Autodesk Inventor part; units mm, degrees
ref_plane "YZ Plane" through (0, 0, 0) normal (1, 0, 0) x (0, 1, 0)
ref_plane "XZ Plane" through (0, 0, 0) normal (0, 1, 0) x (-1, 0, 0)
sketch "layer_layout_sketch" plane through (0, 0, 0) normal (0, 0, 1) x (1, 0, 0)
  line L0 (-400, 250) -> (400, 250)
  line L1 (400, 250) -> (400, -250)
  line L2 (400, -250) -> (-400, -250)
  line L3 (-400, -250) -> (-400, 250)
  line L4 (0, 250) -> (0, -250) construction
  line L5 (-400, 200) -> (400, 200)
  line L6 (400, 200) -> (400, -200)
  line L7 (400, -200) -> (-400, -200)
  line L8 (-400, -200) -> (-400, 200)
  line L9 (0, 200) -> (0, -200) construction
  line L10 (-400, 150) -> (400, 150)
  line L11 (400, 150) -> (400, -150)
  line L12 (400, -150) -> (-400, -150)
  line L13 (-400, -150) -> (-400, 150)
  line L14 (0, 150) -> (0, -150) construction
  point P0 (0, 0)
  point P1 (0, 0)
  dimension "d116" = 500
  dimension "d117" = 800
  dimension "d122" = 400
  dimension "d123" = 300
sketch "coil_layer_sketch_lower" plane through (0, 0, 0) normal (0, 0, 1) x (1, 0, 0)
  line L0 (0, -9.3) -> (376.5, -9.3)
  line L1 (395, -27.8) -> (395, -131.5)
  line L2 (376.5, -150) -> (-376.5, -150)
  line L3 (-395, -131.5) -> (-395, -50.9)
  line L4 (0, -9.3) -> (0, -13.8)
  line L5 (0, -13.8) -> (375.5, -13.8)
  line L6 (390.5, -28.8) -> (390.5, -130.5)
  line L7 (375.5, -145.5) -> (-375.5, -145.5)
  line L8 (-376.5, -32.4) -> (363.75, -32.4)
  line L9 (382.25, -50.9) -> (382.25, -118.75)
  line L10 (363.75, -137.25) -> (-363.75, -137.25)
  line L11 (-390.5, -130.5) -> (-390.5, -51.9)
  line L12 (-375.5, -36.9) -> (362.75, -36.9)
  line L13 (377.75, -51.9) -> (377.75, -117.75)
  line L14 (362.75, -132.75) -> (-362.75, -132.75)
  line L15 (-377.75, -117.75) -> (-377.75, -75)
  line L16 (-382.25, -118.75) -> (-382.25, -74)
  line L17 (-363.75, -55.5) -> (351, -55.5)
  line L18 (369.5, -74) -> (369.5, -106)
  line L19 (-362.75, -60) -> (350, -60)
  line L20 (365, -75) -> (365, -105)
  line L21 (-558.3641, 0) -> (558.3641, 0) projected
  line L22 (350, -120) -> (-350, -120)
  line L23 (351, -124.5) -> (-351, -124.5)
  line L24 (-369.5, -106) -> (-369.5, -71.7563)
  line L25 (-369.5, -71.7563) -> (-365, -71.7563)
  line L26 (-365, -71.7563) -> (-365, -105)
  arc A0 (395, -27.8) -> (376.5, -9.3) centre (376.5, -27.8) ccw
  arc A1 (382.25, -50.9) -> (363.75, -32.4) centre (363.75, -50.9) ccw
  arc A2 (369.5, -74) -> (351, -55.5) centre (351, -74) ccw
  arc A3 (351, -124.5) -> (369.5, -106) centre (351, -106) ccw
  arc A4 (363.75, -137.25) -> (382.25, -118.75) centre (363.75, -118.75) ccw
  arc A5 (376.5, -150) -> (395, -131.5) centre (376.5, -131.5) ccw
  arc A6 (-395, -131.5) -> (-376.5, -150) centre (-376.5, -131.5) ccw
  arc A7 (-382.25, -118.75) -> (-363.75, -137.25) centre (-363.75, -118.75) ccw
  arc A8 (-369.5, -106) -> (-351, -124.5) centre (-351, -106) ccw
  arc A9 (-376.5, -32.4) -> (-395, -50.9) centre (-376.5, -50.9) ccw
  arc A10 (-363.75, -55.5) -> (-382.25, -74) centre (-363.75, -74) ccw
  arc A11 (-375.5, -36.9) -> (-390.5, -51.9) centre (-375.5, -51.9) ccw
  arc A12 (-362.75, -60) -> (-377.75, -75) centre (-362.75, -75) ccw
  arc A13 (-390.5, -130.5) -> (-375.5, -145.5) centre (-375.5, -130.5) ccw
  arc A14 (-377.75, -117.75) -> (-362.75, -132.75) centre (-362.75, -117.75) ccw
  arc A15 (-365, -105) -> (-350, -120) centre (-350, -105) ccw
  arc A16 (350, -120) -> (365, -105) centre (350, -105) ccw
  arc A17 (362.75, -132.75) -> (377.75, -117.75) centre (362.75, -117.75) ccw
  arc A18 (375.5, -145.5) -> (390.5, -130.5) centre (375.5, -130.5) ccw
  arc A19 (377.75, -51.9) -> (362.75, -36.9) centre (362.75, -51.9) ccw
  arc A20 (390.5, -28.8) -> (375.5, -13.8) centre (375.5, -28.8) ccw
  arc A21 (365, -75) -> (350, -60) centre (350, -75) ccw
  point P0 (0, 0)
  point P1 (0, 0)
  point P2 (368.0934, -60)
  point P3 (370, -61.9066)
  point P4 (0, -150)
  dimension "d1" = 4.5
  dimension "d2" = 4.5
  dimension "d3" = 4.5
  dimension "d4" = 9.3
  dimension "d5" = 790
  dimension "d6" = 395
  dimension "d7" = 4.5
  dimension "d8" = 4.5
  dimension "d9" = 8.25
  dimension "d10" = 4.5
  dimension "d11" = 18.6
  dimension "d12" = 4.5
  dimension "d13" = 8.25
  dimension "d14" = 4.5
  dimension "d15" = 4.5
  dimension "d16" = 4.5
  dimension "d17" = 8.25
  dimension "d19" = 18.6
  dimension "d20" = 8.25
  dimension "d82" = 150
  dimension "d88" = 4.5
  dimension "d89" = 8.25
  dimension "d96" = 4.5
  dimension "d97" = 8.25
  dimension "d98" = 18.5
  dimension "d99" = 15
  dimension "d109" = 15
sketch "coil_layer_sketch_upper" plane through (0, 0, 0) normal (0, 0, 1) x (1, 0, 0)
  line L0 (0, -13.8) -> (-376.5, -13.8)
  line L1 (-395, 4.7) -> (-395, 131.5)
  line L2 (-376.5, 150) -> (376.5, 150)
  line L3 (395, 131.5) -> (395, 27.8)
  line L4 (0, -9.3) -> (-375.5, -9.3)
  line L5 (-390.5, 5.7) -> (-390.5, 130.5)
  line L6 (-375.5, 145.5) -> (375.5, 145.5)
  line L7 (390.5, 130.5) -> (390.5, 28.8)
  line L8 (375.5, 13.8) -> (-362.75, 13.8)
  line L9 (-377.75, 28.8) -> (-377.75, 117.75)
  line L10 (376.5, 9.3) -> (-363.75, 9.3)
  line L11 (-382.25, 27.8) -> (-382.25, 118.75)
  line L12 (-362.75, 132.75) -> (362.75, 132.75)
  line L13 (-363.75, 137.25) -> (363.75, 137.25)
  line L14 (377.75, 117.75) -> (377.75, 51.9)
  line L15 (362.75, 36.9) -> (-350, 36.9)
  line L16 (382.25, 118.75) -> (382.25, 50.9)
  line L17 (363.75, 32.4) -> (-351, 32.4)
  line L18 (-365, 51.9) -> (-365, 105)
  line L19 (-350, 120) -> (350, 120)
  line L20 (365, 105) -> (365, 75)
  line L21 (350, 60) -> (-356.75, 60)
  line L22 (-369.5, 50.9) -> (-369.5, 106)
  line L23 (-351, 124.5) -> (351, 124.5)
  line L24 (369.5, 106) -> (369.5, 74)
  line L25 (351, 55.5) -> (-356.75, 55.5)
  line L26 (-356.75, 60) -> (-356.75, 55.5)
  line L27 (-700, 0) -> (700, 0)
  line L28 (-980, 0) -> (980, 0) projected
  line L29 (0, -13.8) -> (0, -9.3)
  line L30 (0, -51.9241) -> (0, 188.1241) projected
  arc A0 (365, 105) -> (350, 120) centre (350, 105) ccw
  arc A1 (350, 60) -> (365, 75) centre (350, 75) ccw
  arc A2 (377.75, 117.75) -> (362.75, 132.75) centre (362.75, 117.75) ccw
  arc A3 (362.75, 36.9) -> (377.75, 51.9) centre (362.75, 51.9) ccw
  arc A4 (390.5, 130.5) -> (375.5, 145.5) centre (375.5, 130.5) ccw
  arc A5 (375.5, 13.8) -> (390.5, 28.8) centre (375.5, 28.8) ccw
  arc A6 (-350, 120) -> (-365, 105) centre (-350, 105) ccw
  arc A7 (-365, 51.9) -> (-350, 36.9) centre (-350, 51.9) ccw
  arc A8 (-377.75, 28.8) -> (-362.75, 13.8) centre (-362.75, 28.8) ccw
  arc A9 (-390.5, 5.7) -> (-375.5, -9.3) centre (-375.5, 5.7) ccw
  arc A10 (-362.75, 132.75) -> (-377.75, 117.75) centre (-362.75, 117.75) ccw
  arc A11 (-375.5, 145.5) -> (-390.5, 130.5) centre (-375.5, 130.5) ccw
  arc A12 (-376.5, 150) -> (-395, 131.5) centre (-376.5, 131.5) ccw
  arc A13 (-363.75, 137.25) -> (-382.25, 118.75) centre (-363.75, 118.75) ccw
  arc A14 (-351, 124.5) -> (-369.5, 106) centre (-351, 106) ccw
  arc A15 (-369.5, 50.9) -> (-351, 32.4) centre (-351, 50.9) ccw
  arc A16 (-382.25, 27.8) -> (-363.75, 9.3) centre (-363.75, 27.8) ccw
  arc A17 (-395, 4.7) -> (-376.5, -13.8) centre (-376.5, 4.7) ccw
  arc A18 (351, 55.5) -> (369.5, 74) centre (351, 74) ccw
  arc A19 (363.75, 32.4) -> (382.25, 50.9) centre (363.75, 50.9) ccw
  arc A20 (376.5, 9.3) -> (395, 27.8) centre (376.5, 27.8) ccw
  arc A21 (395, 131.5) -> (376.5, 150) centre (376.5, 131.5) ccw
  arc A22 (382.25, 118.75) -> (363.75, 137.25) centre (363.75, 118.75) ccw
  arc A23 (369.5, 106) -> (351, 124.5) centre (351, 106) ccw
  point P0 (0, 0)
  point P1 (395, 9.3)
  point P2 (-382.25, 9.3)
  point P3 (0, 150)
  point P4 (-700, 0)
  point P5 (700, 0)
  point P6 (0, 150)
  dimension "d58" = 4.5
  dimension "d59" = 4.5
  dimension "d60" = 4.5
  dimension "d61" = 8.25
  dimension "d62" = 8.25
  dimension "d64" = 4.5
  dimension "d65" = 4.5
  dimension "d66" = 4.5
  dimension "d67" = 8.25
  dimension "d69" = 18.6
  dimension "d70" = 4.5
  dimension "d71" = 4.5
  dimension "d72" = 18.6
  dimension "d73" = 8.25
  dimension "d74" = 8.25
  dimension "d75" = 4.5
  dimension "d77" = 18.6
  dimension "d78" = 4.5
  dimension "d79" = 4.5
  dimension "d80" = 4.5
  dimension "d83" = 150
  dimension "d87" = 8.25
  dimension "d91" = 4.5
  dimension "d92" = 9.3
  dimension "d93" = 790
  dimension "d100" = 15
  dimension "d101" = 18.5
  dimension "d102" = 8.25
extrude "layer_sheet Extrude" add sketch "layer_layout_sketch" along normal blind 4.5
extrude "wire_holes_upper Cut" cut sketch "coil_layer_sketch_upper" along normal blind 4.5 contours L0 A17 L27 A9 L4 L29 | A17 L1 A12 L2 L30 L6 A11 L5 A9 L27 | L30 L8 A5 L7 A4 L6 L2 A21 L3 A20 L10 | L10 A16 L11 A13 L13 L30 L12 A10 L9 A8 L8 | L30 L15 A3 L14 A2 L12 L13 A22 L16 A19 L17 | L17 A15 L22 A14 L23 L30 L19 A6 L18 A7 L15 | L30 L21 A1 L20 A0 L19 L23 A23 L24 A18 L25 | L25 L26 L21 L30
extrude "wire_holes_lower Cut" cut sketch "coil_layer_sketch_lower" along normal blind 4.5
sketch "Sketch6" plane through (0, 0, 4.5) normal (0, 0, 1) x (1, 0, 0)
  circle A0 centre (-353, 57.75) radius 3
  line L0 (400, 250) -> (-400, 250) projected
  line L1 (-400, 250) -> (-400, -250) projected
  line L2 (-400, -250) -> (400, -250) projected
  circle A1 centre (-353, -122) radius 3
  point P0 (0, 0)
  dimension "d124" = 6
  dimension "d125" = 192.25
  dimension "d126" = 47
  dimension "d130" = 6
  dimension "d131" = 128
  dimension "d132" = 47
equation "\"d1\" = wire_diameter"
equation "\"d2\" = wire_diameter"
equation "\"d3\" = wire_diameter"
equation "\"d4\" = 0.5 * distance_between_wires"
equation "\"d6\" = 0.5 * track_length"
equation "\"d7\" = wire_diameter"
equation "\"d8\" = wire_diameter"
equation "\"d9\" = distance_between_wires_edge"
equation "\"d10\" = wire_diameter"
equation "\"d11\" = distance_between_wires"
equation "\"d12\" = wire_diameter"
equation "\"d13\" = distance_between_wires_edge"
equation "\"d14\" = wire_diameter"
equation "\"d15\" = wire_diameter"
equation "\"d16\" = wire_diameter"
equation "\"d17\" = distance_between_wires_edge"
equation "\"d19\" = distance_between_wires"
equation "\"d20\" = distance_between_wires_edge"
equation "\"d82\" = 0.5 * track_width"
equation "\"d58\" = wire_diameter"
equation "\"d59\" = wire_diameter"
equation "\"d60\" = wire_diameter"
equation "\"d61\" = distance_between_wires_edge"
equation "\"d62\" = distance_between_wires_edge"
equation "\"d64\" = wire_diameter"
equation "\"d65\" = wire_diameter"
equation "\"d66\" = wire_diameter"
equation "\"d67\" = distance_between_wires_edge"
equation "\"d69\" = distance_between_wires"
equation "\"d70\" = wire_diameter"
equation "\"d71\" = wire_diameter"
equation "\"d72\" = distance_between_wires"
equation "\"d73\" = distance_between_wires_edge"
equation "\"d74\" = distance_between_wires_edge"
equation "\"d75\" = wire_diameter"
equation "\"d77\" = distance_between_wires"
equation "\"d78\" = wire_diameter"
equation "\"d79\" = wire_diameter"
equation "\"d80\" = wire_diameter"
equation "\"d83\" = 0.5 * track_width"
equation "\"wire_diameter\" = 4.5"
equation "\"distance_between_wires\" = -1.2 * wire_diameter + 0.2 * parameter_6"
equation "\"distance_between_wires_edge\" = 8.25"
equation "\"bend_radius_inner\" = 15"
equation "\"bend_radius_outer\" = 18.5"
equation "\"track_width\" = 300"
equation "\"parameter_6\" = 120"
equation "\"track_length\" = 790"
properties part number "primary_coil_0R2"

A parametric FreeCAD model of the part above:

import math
import FreeCAD as App
import Part
import Sketcher
from FreeCAD import Vector
Q = App.Units.Quantity

doc = App.newDocument("Part")
params = doc.addObject("Spreadsheet::Sheet", "Params")
for row, (alias, value) in enumerate([
    ("sketch1_width", "800 mm"),
    ("sketch1_height", "500 mm"),
    ("pad1_length", "4.5 mm"),
    ("sketch2_radius", "15 mm"),
    ("sketch2_radius2", "18.5 mm"),
    ("sketch2_height", "4.5 mm"),
    ("sketch2_width", "751 mm"),
    ("sketch2_width2", "700 mm"),
    ("pocket1_length", "4.5 mm"),
    ("sketch3_radius", "15 mm"),
    ("sketch3_radius2", "18.5 mm"),
    ("sketch3_width", "4.5 mm"),
    ("sketch3_width2", "751 mm"),
    ("sketch3_width3", "700 mm"),
    ("pocket2_length", "4.5 mm"),
], start=1):
    params.set(f"A{row}", alias)
    params.set(f"B{row}", "=" + value)
    params.setAlias(f"B{row}", alias)

body = doc.addObject("PartDesign::Body", "Body")

# Sketch on XY plane
sketch1 = body.newObject("Sketcher::SketchObject", "Sketch")
sketch1.AttachmentSupport = (doc.getObject("XY_Plane"), [""])
sketch1.MapMode = "FlatFace"
sketch1.addGeometry([
    Part.LineSegment(Vector(400, 250, 0), Vector(-400, 250, 0)),
    Part.LineSegment(Vector(-400, 250, 0), Vector(-400, -250, 0)),
    Part.LineSegment(Vector(-400, -250, 0), Vector(400, -250, 0)),
    Part.LineSegment(Vector(400, -250, 0), Vector(400, 250, 0)),
], False)
sketch1.addConstraint([
    Sketcher.Constraint("Coincident", 0, 2, 1, 1),
    Sketcher.Constraint("Coincident", 1, 2, 2, 1),
    Sketcher.Constraint("Coincident", 2, 2, 3, 1),
    Sketcher.Constraint("Coincident", 3, 2, 0, 1),
    Sketcher.Constraint("Horizontal", 0),
    Sketcher.Constraint("Vertical", 1),
    Sketcher.Constraint("Horizontal", 2),
    Sketcher.Constraint("Vertical", 3),
    Sketcher.Constraint("Symmetric", 0, 2, 2, 2, -1, 1),
    Sketcher.Constraint("DistanceX", 0, 2, 0, 1, Q("800 mm")),
    Sketcher.Constraint("DistanceY", 1, 2, 1, 1, Q("500 mm")),
])
sketch1.setExpression("Constraints[9]", "Params.sketch1_width")
sketch1.setExpression("Constraints[10]", "Params.sketch1_height")
pad1 = body.newObject("PartDesign::Pad", "Pad")
pad1.Profile = sketch1
pad1.setExpression("Length", "Params.pad1_length")

# Sketch on XY plane
sketch2 = body.newObject("Sketcher::SketchObject", "Sketch001")
sketch2.AttachmentSupport = (doc.getObject("XY_Plane"), [""])
sketch2.MapMode = "FlatFace"
sketch2.addGeometry([
    Part.LineSegment(Vector(-376.5, -13.8, 0), Vector(0, -13.8, 0)),  # 0
    Part.LineSegment(Vector(0, -13.8, 0), Vector(0, -9.3, 0)),  # 1
    Part.LineSegment(Vector(0, -9.3, 0), Vector(-375.5, -9.3, 0)),  # 2
    Part.ArcOfCircle(Part.Circle(Vector(-375.5, 5.7, 0), Vector(0, 0, 1), 15), math.radians(180), math.radians(270)),  # 3
    Part.LineSegment(Vector(-390.5, 5.7, 0), Vector(-390.5, 130.5, 0)),  # 4
    Part.ArcOfCircle(Part.Circle(Vector(-375.5, 130.5, 0), Vector(0, 0, 1), 15), math.radians(90), math.radians(180)),  # 5
    Part.LineSegment(Vector(-375.5, 145.5, 0), Vector(375.5, 145.5, 0)),  # 6
    Part.ArcOfCircle(Part.Circle(Vector(375.5, 130.5, 0), Vector(0, 0, 1), 15), math.radians(0), math.radians(90)),  # 7
    Part.LineSegment(Vector(390.5, 130.5, 0), Vector(390.5, 28.8, 0)),  # 8
    Part.ArcOfCircle(Part.Circle(Vector(375.5, 28.8, 0), Vector(0, 0, 1), 15), math.radians(-90), math.radians(0)),  # 9
    Part.LineSegment(Vector(375.5, 13.8, 0), Vector(-362.8, 13.8, 0)),  # 10
    Part.ArcOfCircle(Part.Circle(Vector(-362.8, 28.8, 0), Vector(0, 0, 1), 15), math.radians(180), math.radians(270)),  # 11
    Part.LineSegment(Vector(-377.8, 28.8, 0), Vector(-377.8, 117.8, 0)),  # 12
    Part.ArcOfCircle(Part.Circle(Vector(-362.8, 117.8, 0), Vector(0, 0, 1), 15), math.radians(90), math.radians(180)),  # 13
    Part.LineSegment(Vector(-362.8, 132.8, 0), Vector(362.8, 132.8, 0)),  # 14
    Part.ArcOfCircle(Part.Circle(Vector(362.8, 117.8, 0), Vector(0, 0, 1), 15), math.radians(0), math.radians(90)),  # 15
    Part.LineSegment(Vector(377.8, 117.8, 0), Vector(377.8, 51.9, 0)),  # 16
    Part.ArcOfCircle(Part.Circle(Vector(362.8, 51.9, 0), Vector(0, 0, 1), 15), math.radians(-90), math.radians(0)),  # 17
    Part.LineSegment(Vector(362.8, 36.9, 0), Vector(-350, 36.9, 0)),  # 18
    Part.ArcOfCircle(Part.Circle(Vector(-350, 51.9, 0), Vector(0, 0, 1), 15), math.radians(180), math.radians(270)),  # 19
    Part.LineSegment(Vector(-365, 51.9, 0), Vector(-365, 105, 0)),  # 20
    Part.ArcOfCircle(Part.Circle(Vector(-350, 105, 0), Vector(0, 0, 1), 15), math.radians(90), math.radians(180)),  # 21
    Part.LineSegment(Vector(-350, 120, 0), Vector(350, 120, 0)),  # 22
    Part.ArcOfCircle(Part.Circle(Vector(350, 105, 0), Vector(0, 0, 1), 15), math.radians(0), math.radians(90)),  # 23
    Part.LineSegment(Vector(365, 105, 0), Vector(365, 75, 0)),  # 24
    Part.ArcOfCircle(Part.Circle(Vector(350, 75, 0), Vector(0, 0, 1), 15), math.radians(-90), math.radians(0)),  # 25
    Part.LineSegment(Vector(350, 60, 0), Vector(-356.8, 60, 0)),  # 26
    Part.LineSegment(Vector(-356.8, 60, 0), Vector(-356.8, 55.5, 0)),  # 27
    Part.LineSegment(Vector(-356.8, 55.5, 0), Vector(351, 55.5, 0)),  # 28
    Part.ArcOfCircle(Part.Circle(Vector(351, 74, 0), Vector(0, 0, 1), 18.5), math.radians(-90), math.radians(0)),  # 29
    Part.LineSegment(Vector(369.5, 74, 0), Vector(369.5, 106, 0)),  # 30
    Part.ArcOfCircle(Part.Circle(Vector(351, 106, 0), Vector(0, 0, 1), 18.5), math.radians(0), math.radians(90)),  # 31
    Part.LineSegment(Vector(351, 124.5, 0), Vector(-351, 124.5, 0)),  # 32
    Part.ArcOfCircle(Part.Circle(Vector(-351, 106, 0), Vector(0, 0, 1), 18.5), math.radians(90), math.radians(180)),  # 33
    Part.LineSegment(Vector(-369.5, 106, 0), Vector(-369.5, 50.9, 0)),  # 34
    Part.ArcOfCircle(Part.Circle(Vector(-351, 50.9, 0), Vector(0, 0, 1), 18.5), math.radians(180), math.radians(270)),  # 35
    Part.LineSegment(Vector(-351, 32.4, 0), Vector(363.8, 32.4, 0)),  # 36
    Part.ArcOfCircle(Part.Circle(Vector(363.8, 50.9, 0), Vector(0, 0, 1), 18.5), math.radians(-90), math.radians(0)),  # 37
    Part.LineSegment(Vector(382.2, 50.9, 0), Vector(382.2, 118.8, 0)),  # 38
    Part.ArcOfCircle(Part.Circle(Vector(363.8, 118.8, 0), Vector(0, 0, 1), 18.5), math.radians(0), math.radians(90)),  # 39
    Part.LineSegment(Vector(363.8, 137.2, 0), Vector(-363.8, 137.2, 0)),  # 40
    Part.ArcOfCircle(Part.Circle(Vector(-363.8, 118.8, 0), Vector(0, 0, 1), 18.5), math.radians(90), math.radians(180)),  # 41
    Part.LineSegment(Vector(-382.2, 118.8, 0), Vector(-382.2, 27.8, 0)),  # 42
    Part.ArcOfCircle(Part.Circle(Vector(-363.8, 27.8, 0), Vector(0, 0, 1), 18.5), math.radians(180), math.radians(270)),  # 43
    Part.LineSegment(Vector(-363.8, 9.3, 0), Vector(376.5, 9.3, 0)),  # 44
    Part.ArcOfCircle(Part.Circle(Vector(376.5, 27.8, 0), Vector(0, 0, 1), 18.5), math.radians(-90), math.radians(0)),  # 45
    Part.LineSegment(Vector(395, 27.8, 0), Vector(395, 131.5, 0)),  # 46
    Part.ArcOfCircle(Part.Circle(Vector(376.5, 131.5, 0), Vector(0, 0, 1), 18.5), math.radians(0), math.radians(90)),  # 47
    Part.LineSegment(Vector(376.5, 150, 0), Vector(-376.5, 150, 0)),  # 48
    Part.ArcOfCircle(Part.Circle(Vector(-376.5, 131.5, 0), Vector(0, 0, 1), 18.5), math.radians(90), math.radians(180)),  # 49
    Part.LineSegment(Vector(-395, 131.5, 0), Vector(-395, 4.7, 0)),  # 50
    Part.ArcOfCircle(Part.Circle(Vector(-376.5, 4.7, 0), Vector(0, 0, 1), 18.5), math.radians(180), math.radians(270)),  # 51
], False)
sketch2.addConstraint([
    Sketcher.Constraint("Coincident", 0, 2, 1, 1),
    Sketcher.Constraint("Coincident", 1, 2, 2, 1),
    Sketcher.Constraint("Tangent", 2, 2, 3, 2),
    Sketcher.Constraint("Tangent", 3, 1, 4, 1),
    Sketcher.Constraint("Tangent", 4, 2, 5, 2),
    Sketcher.Constraint("Tangent", 5, 1, 6, 1),
    Sketcher.Constraint("Tangent", 6, 2, 7, 2),
    Sketcher.Constraint("Tangent", 7, 1, 8, 1),
    Sketcher.Constraint("Tangent", 8, 2, 9, 2),
    Sketcher.Constraint("Tangent", 9, 1, 10, 1),
    Sketcher.Constraint("Tangent", 10, 2, 11, 2),
    Sketcher.Constraint("Tangent", 11, 1, 12, 1),
    Sketcher.Constraint("Tangent", 12, 2, 13, 2),
    Sketcher.Constraint("Tangent", 13, 1, 14, 1),
    Sketcher.Constraint("Tangent", 14, 2, 15, 2),
    Sketcher.Constraint("Tangent", 15, 1, 16, 1),
    Sketcher.Constraint("Tangent", 16, 2, 17, 2),
    Sketcher.Constraint("Tangent", 17, 1, 18, 1),
    Sketcher.Constraint("Tangent", 18, 2, 19, 2),
    Sketcher.Constraint("Tangent", 19, 1, 20, 1),
    Sketcher.Constraint("Tangent", 20, 2, 21, 2),
    Sketcher.Constraint("Tangent", 21, 1, 22, 1),
    Sketcher.Constraint("Tangent", 22, 2, 23, 2),
    Sketcher.Constraint("Tangent", 23, 1, 24, 1),
    Sketcher.Constraint("Tangent", 24, 2, 25, 2),
    Sketcher.Constraint("Tangent", 25, 1, 26, 1),
    Sketcher.Constraint("Coincident", 26, 2, 27, 1),
    Sketcher.Constraint("Coincident", 27, 2, 28, 1),
    Sketcher.Constraint("Tangent", 28, 2, 29, 1),
    Sketcher.Constraint("Tangent", 29, 2, 30, 1),
    Sketcher.Constraint("Tangent", 30, 2, 31, 1),
    Sketcher.Constraint("Tangent", 31, 2, 32, 1),
    Sketcher.Constraint("Tangent", 32, 2, 33, 1),
    Sketcher.Constraint("Tangent", 33, 2, 34, 1),
    Sketcher.Constraint("Tangent", 34, 2, 35, 1),
    Sketcher.Constraint("Tangent", 35, 2, 36, 1),
    Sketcher.Constraint("Tangent", 36, 2, 37, 1),
    Sketcher.Constraint("Tangent", 37, 2, 38, 1),
    Sketcher.Constraint("Tangent", 38, 2, 39, 1),
    Sketcher.Constraint("Tangent", 39, 2, 40, 1),
    Sketcher.Constraint("Tangent", 40, 2, 41, 1),
    Sketcher.Constraint("Tangent", 41, 2, 42, 1),
    Sketcher.Constraint("Tangent", 42, 2, 43, 1),
    Sketcher.Constraint("Tangent", 43, 2, 44, 1),
    Sketcher.Constraint("Tangent", 44, 2, 45, 1),
    Sketcher.Constraint("Tangent", 45, 2, 46, 1),
    Sketcher.Constraint("Tangent", 46, 2, 47, 1),
    Sketcher.Constraint("Tangent", 47, 2, 48, 1),
    Sketcher.Constraint("Tangent", 48, 2, 49, 1),
    Sketcher.Constraint("Tangent", 49, 2, 50, 1),
    Sketcher.Constraint("Tangent", 50, 2, 51, 1),
    Sketcher.Constraint("Tangent", 51, 2, 0, 1),
    Sketcher.Constraint("Horizontal", 0),
    Sketcher.Constraint("Vertical", 1),
    Sketcher.Constraint("Horizontal", 2),
    Sketcher.Constraint("Vertical", 4),
    Sketcher.Constraint("Horizontal", 6),
    Sketcher.Constraint("Vertical", 8),
    Sketcher.Constraint("Horizontal", 10),
    Sketcher.Constraint("Vertical", 12),
    Sketcher.Constraint("Horizontal", 14),
    Sketcher.Constraint("Vertical", 16),
    Sketcher.Constraint("Horizontal", 18),
    Sketcher.Constraint("Vertical", 20),
    Sketcher.Constraint("Horizontal", 22),
    Sketcher.Constraint("Vertical", 24),
    Sketcher.Constraint("Horizontal", 26),
    Sketcher.Constraint("Vertical", 27),
    Sketcher.Constraint("Horizontal", 28),
    Sketcher.Constraint("Vertical", 30),
    Sketcher.Constraint("Horizontal", 32),
    Sketcher.Constraint("Vertical", 34),
    Sketcher.Constraint("Horizontal", 36),
    Sketcher.Constraint("Vertical", 38),
    Sketcher.Constraint("Horizontal", 40),
    Sketcher.Constraint("Vertical", 42),
    Sketcher.Constraint("Horizontal", 44),
    Sketcher.Constraint("Vertical", 46),
    Sketcher.Constraint("Horizontal", 48),
    Sketcher.Constraint("Vertical", 50),
    Sketcher.Constraint("Equal", 3, 5),
    Sketcher.Constraint("Equal", 5, 7),
    Sketcher.Constraint("Equal", 7, 9),
    Sketcher.Constraint("Equal", 9, 11),
    Sketcher.Constraint("Equal", 11, 13),
    Sketcher.Constraint("Equal", 13, 15),
    Sketcher.Constraint("Equal", 15, 17),
    Sketcher.Constraint("Equal", 17, 19),
    Sketcher.Constraint("Equal", 19, 21),
    Sketcher.Constraint("Equal", 21, 23),
    Sketcher.Constraint("Equal", 23, 25),
    Sketcher.Constraint("Equal", 29, 31),
    Sketcher.Constraint("Equal", 31, 33),
    Sketcher.Constraint("Equal", 33, 35),
    Sketcher.Constraint("Equal", 35, 37),
    Sketcher.Constraint("Equal", 37, 39),
    Sketcher.Constraint("Equal", 39, 41),
    Sketcher.Constraint("Equal", 41, 43),
    Sketcher.Constraint("Equal", 43, 45),
    Sketcher.Constraint("Equal", 45, 47),
    Sketcher.Constraint("Equal", 47, 49),
    Sketcher.Constraint("Equal", 49, 51),
    Sketcher.Constraint("PointOnObject", 0, 2, -2),
    Sketcher.Constraint("Equal", 1, 27),
    Sketcher.Constraint("Radius", 3, Q("15 mm")),
    Sketcher.Constraint("Radius", 29, Q("18.5 mm")),
    Sketcher.Constraint("DistanceY", 1, 1, 1, 2, Q("4.5 mm")),
    Sketcher.Constraint("DistanceY", -1, 1, 47, 2, Q("150 mm")),
    Sketcher.Constraint("DistanceY", 1, 2, -1, 1, Q("9.3 mm")),
    Sketcher.Constraint("DistanceY", -1, 1, 43, 2, Q("9.3 mm")),
    Sketcher.Constraint("DistanceX", 6, 1, 6, 2, Q("751 mm")),
    Sketcher.Constraint("DistanceX", 22, 1, 22, 2, Q("700 mm")),
    Sketcher.Constraint("DistanceX", 32, 2, 32, 1, Q("702 mm")),
    Sketcher.Constraint("DistanceX", 48, 2, 48, 1, Q("753 mm")),
    Sketcher.Constraint("DistanceY", 24, 2, 24, 1, Q("30 mm")),
    Sketcher.Constraint("DistanceY", 30, 1, 30, 2, Q("32 mm")),
    Sketcher.Constraint("DistanceX", 0, 1, 0, 2, Q("376.5 mm")),
    Sketcher.Constraint("DistanceX", 2, 2, 2, 1, Q("375.5 mm")),
    Sketcher.Constraint("DistanceX", 14, 1, 14, 2, Q("725.5 mm")),
    Sketcher.Constraint("DistanceX", 40, 2, 40, 1, Q("727.5 mm")),
    Sketcher.Constraint("DistanceY", 4, 1, 4, 2, Q("124.8 mm")),
    Sketcher.Constraint("DistanceY", 8, 2, 8, 1, Q("101.7 mm")),
    Sketcher.Constraint("DistanceY", 20, 1, 20, 2, Q("53.1 mm")),
    Sketcher.Constraint("DistanceY", 34, 2, 34, 1, Q("55.1 mm")),
    Sketcher.Constraint("DistanceX", 19, 3, -1, 1, Q("350 mm")),
    Sketcher.Constraint("DistanceY", -1, 1, 21, 3, Q("105 mm")),
    Sketcher.Constraint("DistanceX", -1, 1, 29, 3, Q("351 mm")),
    Sketcher.Constraint("DistanceX", 10, 2, 10, 1, Q("738.25 mm")),
    Sketcher.Constraint("DistanceX", 26, 2, 26, 1, Q("706.75 mm")),
    Sketcher.Constraint("DistanceX", 36, 1, 36, 2, Q("714.75 mm")),
    Sketcher.Constraint("DistanceY", 12, 1, 12, 2, Q("88.95 mm")),
    Sketcher.Constraint("DistanceY", 38, 1, 38, 2, Q("67.85 mm")),
])
sketch2.setExpression("Constraints[104]", "Params.sketch2_radius")
sketch2.setExpression("Constraints[105]", "Params.sketch2_radius2")
sketch2.setExpression("Constraints[106]", "Params.sketch2_height")
sketch2.setExpression("Constraints[110]", "Params.sketch2_width")
sketch2.setExpression("Constraints[111]", "Params.sketch2_width2")
pocket1 = body.newObject("PartDesign::Pocket", "Pocket")
pocket1.Profile = sketch2
pocket1.setExpression("Length", "Params.pocket1_length")
pocket1.Reversed = True

# Sketch on XY plane
sketch3 = body.newObject("Sketcher::SketchObject", "Sketch002")
sketch3.AttachmentSupport = (doc.getObject("XY_Plane"), [""])
sketch3.MapMode = "FlatFace"
sketch3.addGeometry([
    Part.LineSegment(Vector(376.5, -9.3, 0), Vector(0, -9.3, 0)),  # 0
    Part.LineSegment(Vector(0, -9.3, 0), Vector(0, -13.8, 0)),  # 1
    Part.LineSegment(Vector(0, -13.8, 0), Vector(375.5, -13.8, 0)),  # 2
    Part.ArcOfCircle(Part.Circle(Vector(375.5, -28.8, 0), Vector(0, 0, 1), 15), math.radians(0), math.radians(90)),  # 3
    Part.LineSegment(Vector(390.5, -28.8, 0), Vector(390.5, -130.5, 0)),  # 4
    Part.ArcOfCircle(Part.Circle(Vector(375.5, -130.5, 0), Vector(0, 0, 1), 15), math.radians(-90), math.radians(0)),  # 5
    Part.LineSegment(Vector(375.5, -145.5, 0), Vector(-375.5, -145.5, 0)),  # 6
    Part.ArcOfCircle(Part.Circle(Vector(-375.5, -130.5, 0), Vector(0, 0, 1), 15), math.radians(180), math.radians(270)),  # 7
    Part.LineSegment(Vector(-390.5, -130.5, 0), Vector(-390.5, -51.9, 0)),  # 8
    Part.ArcOfCircle(Part.Circle(Vector(-375.5, -51.9, 0), Vector(0, 0, 1), 15), math.radians(90), math.radians(180)),  # 9
    Part.LineSegment(Vector(-375.5, -36.9, 0), Vector(362.8, -36.9, 0)),  # 10
    Part.ArcOfCircle(Part.Circle(Vector(362.8, -51.9, 0), Vector(0, 0, 1), 15), math.radians(0), math.radians(90)),  # 11
    Part.LineSegment(Vector(377.8, -51.9, 0), Vector(377.8, -117.8, 0)),  # 12
    Part.ArcOfCircle(Part.Circle(Vector(362.8, -117.8, 0), Vector(0, 0, 1), 15), math.radians(-90), math.radians(0)),  # 13
    Part.LineSegment(Vector(362.8, -132.8, 0), Vector(-362.8, -132.8, 0)),  # 14
    Part.ArcOfCircle(Part.Circle(Vector(-362.8, -117.8, 0), Vector(0, 0, 1), 15), math.radians(180), math.radians(270)),  # 15
    Part.LineSegment(Vector(-377.8, -117.8, 0), Vector(-377.8, -75, 0)),  # 16
    Part.ArcOfCircle(Part.Circle(Vector(-362.8, -75, 0), Vector(0, 0, 1), 15), math.radians(90), math.radians(180)),  # 17
    Part.LineSegment(Vector(-362.8, -60, 0), Vector(350, -60, 0)),  # 18
    Part.ArcOfCircle(Part.Circle(Vector(350, -75, 0), Vector(0, 0, 1), 15), math.radians(0), math.radians(90)),  # 19
    Part.LineSegment(Vector(365, -75, 0), Vector(365, -105, 0)),  # 20
    Part.ArcOfCircle(Part.Circle(Vector(350, -105, 0), Vector(0, 0, 1), 15), math.radians(-90), math.radians(0)),  # 21
    Part.LineSegment(Vector(350, -120, 0), Vector(-350, -120, 0)),  # 22
    Part.ArcOfCircle(Part.Circle(Vector(-350, -105, 0), Vector(0, 0, 1), 15), math.radians(180), math.radians(270)),  # 23
    Part.LineSegment(Vector(-365, -105, 0), Vector(-365, -71.8, 0)),  # 24
    Part.LineSegment(Vector(-365, -71.8, 0), Vector(-369.5, -71.8, 0)),  # 25
    Part.LineSegment(Vector(-369.5, -71.8, 0), Vector(-369.5, -106, 0)),  # 26
    Part.ArcOfCircle(Part.Circle(Vector(-351, -106, 0), Vector(0, 0, 1), 18.5), math.radians(180), math.radians(270)),  # 27
    Part.LineSegment(Vector(-351, -124.5, 0), Vector(351, -124.5, 0)),  # 28
    Part.ArcOfCircle(Part.Circle(Vector(351, -106, 0), Vector(0, 0, 1), 18.5), math.radians(-90), math.radians(0)),  # 29
    Part.LineSegment(Vector(369.5, -106, 0), Vector(369.5, -74, 0)),  # 30
    Part.ArcOfCircle(Part.Circle(Vector(351, -74, 0), Vector(0, 0, 1), 18.5), math.radians(0), math.radians(90)),  # 31
    Part.LineSegment(Vector(351, -55.5, 0), Vector(-363.8, -55.5, 0)),  # 32
    Part.ArcOfCircle(Part.Circle(Vector(-363.8, -74, 0), Vector(0, 0, 1), 18.5), math.radians(90), math.radians(180)),  # 33
    Part.LineSegment(Vector(-382.2, -74, 0), Vector(-382.2, -118.8, 0)),  # 34
    Part.ArcOfCircle(Part.Circle(Vector(-363.8, -118.8, 0), Vector(0, 0, 1), 18.5), math.radians(180), math.radians(270)),  # 35
    Part.LineSegment(Vector(-363.8, -137.2, 0), Vector(363.8, -137.2, 0)),  # 36
    Part.ArcOfCircle(Part.Circle(Vector(363.8, -118.8, 0), Vector(0, 0, 1), 18.5), math.radians(-90), math.radians(0)),  # 37
    Part.LineSegment(Vector(382.2, -118.8, 0), Vector(382.2, -50.9, 0)),  # 38
    Part.ArcOfCircle(Part.Circle(Vector(363.8, -50.9, 0), Vector(0, 0, 1), 18.5), math.radians(0), math.radians(90)),  # 39
    Part.LineSegment(Vector(363.8, -32.4, 0), Vector(-376.5, -32.4, 0)),  # 40
    Part.ArcOfCircle(Part.Circle(Vector(-376.5, -50.9, 0), Vector(0, 0, 1), 18.5), math.radians(90), math.radians(180)),  # 41
    Part.LineSegment(Vector(-395, -50.9, 0), Vector(-395, -131.5, 0)),  # 42
    Part.ArcOfCircle(Part.Circle(Vector(-376.5, -131.5, 0), Vector(0, 0, 1), 18.5), math.radians(180), math.radians(270)),  # 43
    Part.LineSegment(Vector(-376.5, -150, 0), Vector(376.5, -150, 0)),  # 44
    Part.ArcOfCircle(Part.Circle(Vector(376.5, -131.5, 0), Vector(0, 0, 1), 18.5), math.radians(-90), math.radians(0)),  # 45
    Part.LineSegment(Vector(395, -131.5, 0), Vector(395, -27.8, 0)),  # 46
    Part.ArcOfCircle(Part.Circle(Vector(376.5, -27.8, 0), Vector(0, 0, 1), 18.5), math.radians(0), math.radians(90)),  # 47
], False)
sketch3.addConstraint([
    Sketcher.Constraint("Coincident", 0, 2, 1, 1),
    Sketcher.Constraint("Coincident", 1, 2, 2, 1),
    Sketcher.Constraint("Tangent", 2, 2, 3, 2),
    Sketcher.Constraint("Tangent", 3, 1, 4, 1),
    Sketcher.Constraint("Tangent", 4, 2, 5, 2),
    Sketcher.Constraint("Tangent", 5, 1, 6, 1),
    Sketcher.Constraint("Tangent", 6, 2, 7, 2),
    Sketcher.Constraint("Tangent", 7, 1, 8, 1),
    Sketcher.Constraint("Tangent", 8, 2, 9, 2),
    Sketcher.Constraint("Tangent", 9, 1, 10, 1),
    Sketcher.Constraint("Tangent", 10, 2, 11, 2),
    Sketcher.Constraint("Tangent", 11, 1, 12, 1),
    Sketcher.Constraint("Tangent", 12, 2, 13, 2),
    Sketcher.Constraint("Tangent", 13, 1, 14, 1),
    Sketcher.Constraint("Tangent", 14, 2, 15, 2),
    Sketcher.Constraint("Tangent", 15, 1, 16, 1),
    Sketcher.Constraint("Tangent", 16, 2, 17, 2),
    Sketcher.Constraint("Tangent", 17, 1, 18, 1),
    Sketcher.Constraint("Tangent", 18, 2, 19, 2),
    Sketcher.Constraint("Tangent", 19, 1, 20, 1),
    Sketcher.Constraint("Tangent", 20, 2, 21, 2),
    Sketcher.Constraint("Tangent", 21, 1, 22, 1),
    Sketcher.Constraint("Tangent", 22, 2, 23, 2),
    Sketcher.Constraint("Tangent", 23, 1, 24, 1),
    Sketcher.Constraint("Coincident", 24, 2, 25, 1),
    Sketcher.Constraint("Coincident", 25, 2, 26, 1),
    Sketcher.Constraint("Tangent", 26, 2, 27, 1),
    Sketcher.Constraint("Tangent", 27, 2, 28, 1),
    Sketcher.Constraint("Tangent", 28, 2, 29, 1),
    Sketcher.Constraint("Tangent", 29, 2, 30, 1),
    Sketcher.Constraint("Tangent", 30, 2, 31, 1),
    Sketcher.Constraint("Tangent", 31, 2, 32, 1),
    Sketcher.Constraint("Tangent", 32, 2, 33, 1),
    Sketcher.Constraint("Tangent", 33, 2, 34, 1),
    Sketcher.Constraint("Tangent", 34, 2, 35, 1),
    Sketcher.Constraint("Tangent", 35, 2, 36, 1),
    Sketcher.Constraint("Tangent", 36, 2, 37, 1),
    Sketcher.Constraint("Tangent", 37, 2, 38, 1),
    Sketcher.Constraint("Tangent", 38, 2, 39, 1),
    Sketcher.Constraint("Tangent", 39, 2, 40, 1),
    Sketcher.Constraint("Tangent", 40, 2, 41, 1),
    Sketcher.Constraint("Tangent", 41, 2, 42, 1),
    Sketcher.Constraint("Tangent", 42, 2, 43, 1),
    Sketcher.Constraint("Tangent", 43, 2, 44, 1),
    Sketcher.Constraint("Tangent", 44, 2, 45, 1),
    Sketcher.Constraint("Tangent", 45, 2, 46, 1),
    Sketcher.Constraint("Tangent", 46, 2, 47, 1),
    Sketcher.Constraint("Tangent", 47, 2, 0, 1),
    Sketcher.Constraint("Horizontal", 0),
    Sketcher.Constraint("Vertical", 1),
    Sketcher.Constraint("Horizontal", 2),
    Sketcher.Constraint("Vertical", 4),
    Sketcher.Constraint("Horizontal", 6),
    Sketcher.Constraint("Vertical", 8),
    Sketcher.Constraint("Horizontal", 10),
    Sketcher.Constraint("Vertical", 12),
    Sketcher.Constraint("Horizontal", 14),
    Sketcher.Constraint("Vertical", 16),
    Sketcher.Constraint("Horizontal", 18),
    Sketcher.Constraint("Vertical", 20),
    Sketcher.Constraint("Horizontal", 22),
    Sketcher.Constraint("Vertical", 24),
    Sketcher.Constraint("Horizontal", 25),
    Sketcher.Constraint("Vertical", 26),
    Sketcher.Constraint("Horizontal", 28),
    Sketcher.Constraint("Vertical", 30),
    Sketcher.Constraint("Horizontal", 32),
    Sketcher.Constraint("Vertical", 34),
    Sketcher.Constraint("Horizontal", 36),
    Sketcher.Constraint("Vertical", 38),
    Sketcher.Constraint("Horizontal", 40),
    Sketcher.Constraint("Vertical", 42),
    Sketcher.Constraint("Horizontal", 44),
    Sketcher.Constraint("Vertical", 46),
    Sketcher.Constraint("Equal", 3, 5),
    Sketcher.Constraint("Equal", 5, 7),
    Sketcher.Constraint("Equal", 7, 9),
    Sketcher.Constraint("Equal", 9, 11),
    Sketcher.Constraint("Equal", 11, 13),
    Sketcher.Constraint("Equal", 13, 15),
    Sketcher.Constraint("Equal", 15, 17),
    Sketcher.Constraint("Equal", 17, 19),
    Sketcher.Constraint("Equal", 19, 21),
    Sketcher.Constraint("Equal", 21, 23),
    Sketcher.Constraint("Equal", 27, 29),
    Sketcher.Constraint("Equal", 29, 31),
    Sketcher.Constraint("Equal", 31, 33),
    Sketcher.Constraint("Equal", 33, 35),
    Sketcher.Constraint("Equal", 35, 37),
    Sketcher.Constraint("Equal", 37, 39),
    Sketcher.Constraint("Equal", 39, 41),
    Sketcher.Constraint("Equal", 41, 43),
    Sketcher.Constraint("Equal", 43, 45),
    Sketcher.Constraint("Equal", 45, 47),
    Sketcher.Constraint("PointOnObject", 0, 2, -2),
    Sketcher.Constraint("Equal", 25, 1),
    Sketcher.Constraint("Radius", 3, Q("15 mm")),
    Sketcher.Constraint("Radius", 27, Q("18.5 mm")),
    Sketcher.Constraint("DistanceX", 25, 2, 25, 1, Q("4.5 mm")),
    Sketcher.Constraint("DistanceX", 41, 2, -1, 1, Q("395 mm")),
    Sketcher.Constraint("DistanceY", 43, 2, -1, 1, Q("150 mm")),
    Sketcher.Constraint("DistanceX", -1, 1, 45, 2, Q("395 mm")),
    Sketcher.Constraint("DistanceY", 0, 2, -1, 1, Q("9.3 mm")),
    Sketcher.Constraint("DistanceX", 6, 2, 6, 1, Q("751 mm")),
    Sketcher.Constraint("DistanceX", 22, 2, 22, 1, Q("700 mm")),
    Sketcher.Constraint("DistanceX", 28, 1, 28, 2, Q("702 mm")),
    Sketcher.Constraint("DistanceY", 20, 2, 20, 1, Q("30 mm")),
    Sketcher.Constraint("DistanceY", 30, 1, 30, 2, Q("32 mm")),
    Sketcher.Constraint("DistanceX", 2, 1, 2, 2, Q("375.5 mm")),
    Sketcher.Constraint("DistanceX", 14, 2, 14, 1, Q("725.5 mm")),
    Sketcher.Constraint("DistanceX", 36, 1, 36, 2, Q("727.5 mm")),
    Sketcher.Constraint("DistanceY", 4, 2, 4, 1, Q("101.7 mm")),
    Sketcher.Constraint("DistanceY", 8, 1, 8, 2, Q("78.6 mm")),
    Sketcher.Constraint("DistanceY", 42, 2, 42, 1, Q("80.6 mm")),
    Sketcher.Constraint("DistanceY", 17, 3, -1, 1, Q("75 mm")),
    Sketcher.Constraint("DistanceX", -1, 1, 19, 3, Q("350 mm")),
    Sketcher.Constraint("DistanceY", 27, 3, -1, 1, Q("106 mm")),
    Sketcher.Constraint("DistanceX", 10, 1, 10, 2, Q("738.25 mm")),
    Sketcher.Constraint("DistanceX", 32, 2, 32, 1, Q("714.75 mm")),
    Sketcher.Constraint("DistanceY", 12, 2, 12, 1, Q("65.85 mm")),
    Sketcher.Constraint("DistanceY", 34, 2, 34, 1, Q("44.75 mm")),
    Sketcher.Constraint("DistanceY", 24, 1, 24, 2, Q("33.2437 mm")),
])
sketch3.setExpression("Constraints[96]", "Params.sketch3_radius")
sketch3.setExpression("Constraints[97]", "Params.sketch3_radius2")
sketch3.setExpression("Constraints[98]", "Params.sketch3_width")
sketch3.setExpression("Constraints[103]", "Params.sketch3_width2")
sketch3.setExpression("Constraints[104]", "Params.sketch3_width3")
pocket2 = body.newObject("PartDesign::Pocket", "Pocket001")
pocket2.Profile = sketch3
pocket2.setExpression("Length", "Params.pocket2_length")
pocket2.Reversed = True

doc.recompute()
